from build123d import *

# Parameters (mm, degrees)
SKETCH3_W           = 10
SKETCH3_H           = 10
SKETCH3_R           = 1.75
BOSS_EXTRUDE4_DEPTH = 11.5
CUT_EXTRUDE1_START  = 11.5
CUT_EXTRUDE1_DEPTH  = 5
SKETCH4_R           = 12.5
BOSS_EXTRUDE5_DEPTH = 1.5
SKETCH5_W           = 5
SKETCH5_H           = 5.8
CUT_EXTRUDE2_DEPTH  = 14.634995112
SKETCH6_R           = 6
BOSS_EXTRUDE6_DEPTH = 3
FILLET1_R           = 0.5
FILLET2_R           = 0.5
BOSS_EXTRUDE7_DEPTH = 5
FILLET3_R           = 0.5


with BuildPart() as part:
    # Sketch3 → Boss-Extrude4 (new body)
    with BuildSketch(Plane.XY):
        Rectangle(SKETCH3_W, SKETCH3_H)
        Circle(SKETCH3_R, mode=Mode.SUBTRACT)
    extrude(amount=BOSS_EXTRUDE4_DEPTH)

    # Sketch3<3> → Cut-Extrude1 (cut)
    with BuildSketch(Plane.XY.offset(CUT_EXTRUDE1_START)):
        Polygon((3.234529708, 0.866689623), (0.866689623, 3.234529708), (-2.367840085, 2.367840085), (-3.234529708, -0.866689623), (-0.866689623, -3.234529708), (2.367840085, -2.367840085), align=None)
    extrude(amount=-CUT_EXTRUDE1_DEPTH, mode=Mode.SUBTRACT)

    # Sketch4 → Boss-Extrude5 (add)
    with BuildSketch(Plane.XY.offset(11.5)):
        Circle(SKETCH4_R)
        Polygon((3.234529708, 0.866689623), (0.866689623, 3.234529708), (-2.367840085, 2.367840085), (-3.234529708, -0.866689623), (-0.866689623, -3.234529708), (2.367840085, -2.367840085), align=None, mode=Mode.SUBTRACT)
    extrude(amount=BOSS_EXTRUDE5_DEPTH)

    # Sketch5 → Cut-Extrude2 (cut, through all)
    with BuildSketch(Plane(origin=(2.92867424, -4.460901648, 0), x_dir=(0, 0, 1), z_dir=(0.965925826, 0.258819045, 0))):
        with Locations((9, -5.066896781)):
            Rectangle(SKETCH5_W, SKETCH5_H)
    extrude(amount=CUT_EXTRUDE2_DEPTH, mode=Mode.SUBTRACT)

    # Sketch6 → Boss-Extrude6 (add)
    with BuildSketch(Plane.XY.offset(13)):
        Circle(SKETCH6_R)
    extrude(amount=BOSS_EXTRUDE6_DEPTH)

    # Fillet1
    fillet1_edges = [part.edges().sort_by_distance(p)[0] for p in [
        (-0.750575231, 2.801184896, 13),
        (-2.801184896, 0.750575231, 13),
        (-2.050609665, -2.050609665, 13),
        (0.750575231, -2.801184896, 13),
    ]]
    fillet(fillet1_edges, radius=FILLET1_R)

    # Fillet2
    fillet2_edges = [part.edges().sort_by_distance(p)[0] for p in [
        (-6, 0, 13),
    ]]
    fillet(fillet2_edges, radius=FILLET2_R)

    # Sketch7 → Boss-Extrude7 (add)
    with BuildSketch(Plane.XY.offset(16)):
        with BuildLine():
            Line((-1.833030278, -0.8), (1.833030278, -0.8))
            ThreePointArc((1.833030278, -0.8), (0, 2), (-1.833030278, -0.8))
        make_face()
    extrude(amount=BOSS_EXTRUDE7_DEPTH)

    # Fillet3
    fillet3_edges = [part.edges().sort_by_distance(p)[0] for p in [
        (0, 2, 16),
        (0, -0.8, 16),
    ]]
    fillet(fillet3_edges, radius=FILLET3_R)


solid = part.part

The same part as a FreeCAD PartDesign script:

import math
import FreeCAD as App
import Part
import Sketcher

V = App.Vector
Q = App.Units.Quantity


def edges_at(feature, points):
    """Names of the edges that pass closest to the given points."""
    edges = feature.Shape.Edges
    near = lambda p: min(range(len(edges)), key=lambda i: edges[i].distToShape(Part.Vertex(*p))[0])
    return sorted({f"Edge{near(p) + 1}" for p in points})


def add_polygon(sketch, points):
    """Adds a closed chain of lines whose ends are joined by coincident constraints."""
    first, n = sketch.GeometryCount, len(points)
    for a, b in zip(points, points[1:] + points[:1]):
        sketch.addGeometry(Part.LineSegment(App.Vector(*a, 0), App.Vector(*b, 0)), False)
    for i in range(n):
        sketch.addConstraint(Sketcher.Constraint("Coincident", first + i, 2, first + (i + 1) % n, 1))

doc = App.newDocument("Part")
body = doc.addObject("PartDesign::Body", "Body")

# Sketch on XY plane
sketch1 = doc.addObject("Sketcher::SketchObject", "Sketch")
body.addObject(sketch1)
sketch1.AttachmentSupport = (doc.XY_Plane, [""])
sketch1.MapMode = "FlatFace"
add_polygon(sketch1, [(-5, 5), (-5, -5), (5, -5), (5, 5)])  # lines 0-3
sketch1.addGeometry(Part.Circle(V(0, 0, 0), V(0, 0, 1), 1.8), False)  # 4
sketch1.addConstraint([
    Sketcher.Constraint("Vertical", 0),
    Sketcher.Constraint("Horizontal", 1),
    Sketcher.Constraint("Vertical", 2),
    Sketcher.Constraint("Horizontal", 3),
    Sketcher.Constraint("Coincident", 4, 3, -1, 1),
    Sketcher.Constraint("Symmetric", 0, 2, 2, 2, -1, 1),
    Sketcher.Constraint("Equal", 3, 0),
    Sketcher.Constraint("Diameter", 4, 3.5),
    Sketcher.Constraint("DistanceX", 1, 1, 1, 2, 10.0),
])
pad1 = doc.addObject("PartDesign::Pad", "Pad")
body.addObject(pad1)
pad1.Profile = sketch1
pad1.Length = 11.5

# Sketch on XY plane
sketch2 = doc.addObject("Sketcher::SketchObject", "Sketch001")
body.addObject(sketch2)
sketch2.AttachmentSupport = (doc.XY_Plane, [""])
sketch2.MapMode = "FlatFace"
sketch2.AttachmentOffset = App.Placement(V(0, 0, 11.5), App.Rotation())
add_polygon(sketch2, [(3.2, 0.9), (0.9, 3.2), (-2.4, 2.4), (-3.2, -0.9), (-0.9, -3.2), (2.4, -2.4)])  # lines 0-5
sketch2.addConstraint([
    Sketcher.Constraint("Symmetric", 0, 2, 3, 2, -1, 1),
    Sketcher.Constraint("Symmetric", 1, 2, 4, 2, -1, 1),
    Sketcher.Constraint("Symmetric", 2, 2, 5, 2, -1, 1),
    Sketcher.Constraint("Equal", 0, 1),
    Sketcher.Constraint("Equal", 1, 2),
    Sketcher.Constraint("Angle", 0, Q("135 deg")),
    Sketcher.Constraint("Angle", 1, Q("-165 deg")),
    Sketcher.Constraint("Angle", 2, Q("-105 deg")),
    Sketcher.Constraint("Distance", 0, 3.348632),
])
pocket1 = doc.addObject("PartDesign::Pocket", "Pocket")
body.addObject(pocket1)
pocket1.Profile = sketch2
pocket1.Length = 5

# Sketch on XY plane
sketch3 = doc.addObject("Sketcher::SketchObject", "Sketch002")
body.addObject(sketch3)
sketch3.AttachmentSupport = (doc.XY_Plane, [""])
sketch3.MapMode = "FlatFace"
sketch3.AttachmentOffset = App.Placement(V(0, 0, 11.5), App.Rotation())
sketch3.addGeometry(Part.Circle(V(0, 0, 0), V(0, 0, 1), 12.5), False)  # 0
add_polygon(sketch3, [(0.9, 3.2), (3.2, 0.9), (2.4, -2.4), (-0.9, -3.2), (-3.2, -0.9), (-2.4, 2.4)])  # lines 1-6
sketch3.addConstraint([
    Sketcher.Constraint("Coincident", 0, 3, -1, 1),
    Sketcher.Constraint("Symmetric", 1, 2, 4, 2, -1, 1),
    Sketcher.Constraint("Symmetric", 2, 2, 5, 2, -1, 1),
    Sketcher.Constraint("Symmetric", 3, 2, 6, 2, -1, 1),
    Sketcher.Constraint("Equal", 1, 2),
    Sketcher.Constraint("Equal", 2, 3),
    Sketcher.Constraint("Diameter", 0, 25.0),
    Sketcher.Constraint("Angle", 1, Q("-45 deg")),
    Sketcher.Constraint("Angle", 2, Q("-105 deg")),
    Sketcher.Constraint("Angle", 3, Q("-165 deg")),
    Sketcher.Constraint("Distance", 1, 3.348632),
])
pad2 = doc.addObject("PartDesign::Pad", "Pad001")
body.addObject(pad2)
pad2.Profile = sketch3
pad2.Length = 1.5

# Sketch on an angled plane
sketch4 = doc.addObject("Sketcher::SketchObject", "Sketch003")
body.addObject(sketch4)
sketch4.Placement = App.Placement(V(2.928674, -4.460902, 0), App.Rotation(V(0, 0, 1), V(0.258819045, -0.965925826, 0), V(0.965925826, 0.258819045, 0), "ZXY"))
add_polygon(sketch4, [(6, -2), (6, -8), (12, -8), (12, -2)])  # lines 0-3
sketch4.addConstraint([
    Sketcher.Constraint("Vertical", 0),
    Sketcher.Constraint("Horizontal", 1),
    Sketcher.Constraint("Vertical", 2),
    Sketcher.Constraint("Horizontal", 3),
    Sketcher.Constraint("DistanceX", 1, 1, 1, 2, 5.0),
    Sketcher.Constraint("DistanceY", 0, 2, 0, 1, 5.8),
    Sketcher.Constraint("DistanceX", -1, 1, 0, 2, 6.5),
    Sketcher.Constraint("DistanceY", 0, 2, -1, 1, 7.966897),
])
pocket2 = doc.addObject("PartDesign::Pocket", "Pocket001")
body.addObject(pocket2)
pocket2.Profile = sketch4
pocket2.Type = "ThroughAll"
pocket2.Reversed = True

# Sketch on XY plane
sketch5 = doc.addObject("Sketcher::SketchObject", "Sketch004")
body.addObject(sketch5)
sketch5.AttachmentSupport = (doc.XY_Plane, [""])
sketch5.MapMode = "FlatFace"
sketch5.AttachmentOffset = App.Placement(V(0, 0, 13), App.Rotation())
sketch5.addGeometry(Part.Circle(V(0, 0, 0), V(0, 0, 1), 6), False)
sketch5.addConstraint([
    Sketcher.Constraint("Coincident", 0, 3, -1, 1),
    Sketcher.Constraint("Diameter", 0, 12.0),
])
pad3 = doc.addObject("PartDesign::Pad", "Pad002")
body.addObject(pad3)
pad3.Profile = sketch5
pad3.Length = 3
doc.recompute()

fillet = doc.addObject("PartDesign::Fillet", "Fillet")
body.addObject(fillet)
fillet.Base = (pad3, edges_at(pad3, [
    (-0.751, 2.801, 13),
    (-2.801, 0.751, 13),
    (-2.051, -2.051, 13),
    (0.751, -2.801, 13),
]))
fillet.Radius = 0.5
doc.recompute()

fillet2 = doc.addObject("PartDesign::Fillet", "Fillet001")
body.addObject(fillet2)
fillet2.Base = (fillet, edges_at(fillet, [(-6, 0, 13)]))
fillet2.Radius = 0.5

# Sketch on XY plane
sketch6 = doc.addObject("Sketcher::SketchObject", "Sketch005")
body.addObject(sketch6)
sketch6.AttachmentSupport = (doc.XY_Plane, [""])
sketch6.MapMode = "FlatFace"
sketch6.AttachmentOffset = App.Placement(V(0, 0, 16), App.Rotation())
sketch6.addGeometry([
    Part.LineSegment(V(-1.8, -0.8, 0), V(1.8, -0.8, 0)),
    Part.ArcOfCircle(Part.Circle(V(0, 0, 0), V(0, 0, 1), 2), math.radians(-24), math.radians(204)),
], False)
sketch6.addConstraint([
    Sketcher.Constraint("Coincident", 0, 1, 1, 2),
    Sketcher.Constraint("Coincident", 1, 1, 0, 2),
    Sketcher.Constraint("Horizontal", 0),
    Sketcher.Constraint("Coincident", 1, 3, -1, 1),
    Sketcher.Constraint("Radius", 1, 2.0),
    Sketcher.Constraint("DistanceY", 0, 1, -1, 1, 0.8),
])
pad4 = doc.addObject("PartDesign::Pad", "Pad003")
body.addObject(pad4)
pad4.Profile = sketch6
pad4.Length = 5
doc.recompute()

fillet3 = doc.addObject("PartDesign::Fillet", "Fillet002")
body.addObject(fillet3)
fillet3.Base = (pad4, edges_at(pad4, [(0, 2, 16), (0, -0.8, 16)]))
fillet3.Radius = 0.5

doc.recompute()
